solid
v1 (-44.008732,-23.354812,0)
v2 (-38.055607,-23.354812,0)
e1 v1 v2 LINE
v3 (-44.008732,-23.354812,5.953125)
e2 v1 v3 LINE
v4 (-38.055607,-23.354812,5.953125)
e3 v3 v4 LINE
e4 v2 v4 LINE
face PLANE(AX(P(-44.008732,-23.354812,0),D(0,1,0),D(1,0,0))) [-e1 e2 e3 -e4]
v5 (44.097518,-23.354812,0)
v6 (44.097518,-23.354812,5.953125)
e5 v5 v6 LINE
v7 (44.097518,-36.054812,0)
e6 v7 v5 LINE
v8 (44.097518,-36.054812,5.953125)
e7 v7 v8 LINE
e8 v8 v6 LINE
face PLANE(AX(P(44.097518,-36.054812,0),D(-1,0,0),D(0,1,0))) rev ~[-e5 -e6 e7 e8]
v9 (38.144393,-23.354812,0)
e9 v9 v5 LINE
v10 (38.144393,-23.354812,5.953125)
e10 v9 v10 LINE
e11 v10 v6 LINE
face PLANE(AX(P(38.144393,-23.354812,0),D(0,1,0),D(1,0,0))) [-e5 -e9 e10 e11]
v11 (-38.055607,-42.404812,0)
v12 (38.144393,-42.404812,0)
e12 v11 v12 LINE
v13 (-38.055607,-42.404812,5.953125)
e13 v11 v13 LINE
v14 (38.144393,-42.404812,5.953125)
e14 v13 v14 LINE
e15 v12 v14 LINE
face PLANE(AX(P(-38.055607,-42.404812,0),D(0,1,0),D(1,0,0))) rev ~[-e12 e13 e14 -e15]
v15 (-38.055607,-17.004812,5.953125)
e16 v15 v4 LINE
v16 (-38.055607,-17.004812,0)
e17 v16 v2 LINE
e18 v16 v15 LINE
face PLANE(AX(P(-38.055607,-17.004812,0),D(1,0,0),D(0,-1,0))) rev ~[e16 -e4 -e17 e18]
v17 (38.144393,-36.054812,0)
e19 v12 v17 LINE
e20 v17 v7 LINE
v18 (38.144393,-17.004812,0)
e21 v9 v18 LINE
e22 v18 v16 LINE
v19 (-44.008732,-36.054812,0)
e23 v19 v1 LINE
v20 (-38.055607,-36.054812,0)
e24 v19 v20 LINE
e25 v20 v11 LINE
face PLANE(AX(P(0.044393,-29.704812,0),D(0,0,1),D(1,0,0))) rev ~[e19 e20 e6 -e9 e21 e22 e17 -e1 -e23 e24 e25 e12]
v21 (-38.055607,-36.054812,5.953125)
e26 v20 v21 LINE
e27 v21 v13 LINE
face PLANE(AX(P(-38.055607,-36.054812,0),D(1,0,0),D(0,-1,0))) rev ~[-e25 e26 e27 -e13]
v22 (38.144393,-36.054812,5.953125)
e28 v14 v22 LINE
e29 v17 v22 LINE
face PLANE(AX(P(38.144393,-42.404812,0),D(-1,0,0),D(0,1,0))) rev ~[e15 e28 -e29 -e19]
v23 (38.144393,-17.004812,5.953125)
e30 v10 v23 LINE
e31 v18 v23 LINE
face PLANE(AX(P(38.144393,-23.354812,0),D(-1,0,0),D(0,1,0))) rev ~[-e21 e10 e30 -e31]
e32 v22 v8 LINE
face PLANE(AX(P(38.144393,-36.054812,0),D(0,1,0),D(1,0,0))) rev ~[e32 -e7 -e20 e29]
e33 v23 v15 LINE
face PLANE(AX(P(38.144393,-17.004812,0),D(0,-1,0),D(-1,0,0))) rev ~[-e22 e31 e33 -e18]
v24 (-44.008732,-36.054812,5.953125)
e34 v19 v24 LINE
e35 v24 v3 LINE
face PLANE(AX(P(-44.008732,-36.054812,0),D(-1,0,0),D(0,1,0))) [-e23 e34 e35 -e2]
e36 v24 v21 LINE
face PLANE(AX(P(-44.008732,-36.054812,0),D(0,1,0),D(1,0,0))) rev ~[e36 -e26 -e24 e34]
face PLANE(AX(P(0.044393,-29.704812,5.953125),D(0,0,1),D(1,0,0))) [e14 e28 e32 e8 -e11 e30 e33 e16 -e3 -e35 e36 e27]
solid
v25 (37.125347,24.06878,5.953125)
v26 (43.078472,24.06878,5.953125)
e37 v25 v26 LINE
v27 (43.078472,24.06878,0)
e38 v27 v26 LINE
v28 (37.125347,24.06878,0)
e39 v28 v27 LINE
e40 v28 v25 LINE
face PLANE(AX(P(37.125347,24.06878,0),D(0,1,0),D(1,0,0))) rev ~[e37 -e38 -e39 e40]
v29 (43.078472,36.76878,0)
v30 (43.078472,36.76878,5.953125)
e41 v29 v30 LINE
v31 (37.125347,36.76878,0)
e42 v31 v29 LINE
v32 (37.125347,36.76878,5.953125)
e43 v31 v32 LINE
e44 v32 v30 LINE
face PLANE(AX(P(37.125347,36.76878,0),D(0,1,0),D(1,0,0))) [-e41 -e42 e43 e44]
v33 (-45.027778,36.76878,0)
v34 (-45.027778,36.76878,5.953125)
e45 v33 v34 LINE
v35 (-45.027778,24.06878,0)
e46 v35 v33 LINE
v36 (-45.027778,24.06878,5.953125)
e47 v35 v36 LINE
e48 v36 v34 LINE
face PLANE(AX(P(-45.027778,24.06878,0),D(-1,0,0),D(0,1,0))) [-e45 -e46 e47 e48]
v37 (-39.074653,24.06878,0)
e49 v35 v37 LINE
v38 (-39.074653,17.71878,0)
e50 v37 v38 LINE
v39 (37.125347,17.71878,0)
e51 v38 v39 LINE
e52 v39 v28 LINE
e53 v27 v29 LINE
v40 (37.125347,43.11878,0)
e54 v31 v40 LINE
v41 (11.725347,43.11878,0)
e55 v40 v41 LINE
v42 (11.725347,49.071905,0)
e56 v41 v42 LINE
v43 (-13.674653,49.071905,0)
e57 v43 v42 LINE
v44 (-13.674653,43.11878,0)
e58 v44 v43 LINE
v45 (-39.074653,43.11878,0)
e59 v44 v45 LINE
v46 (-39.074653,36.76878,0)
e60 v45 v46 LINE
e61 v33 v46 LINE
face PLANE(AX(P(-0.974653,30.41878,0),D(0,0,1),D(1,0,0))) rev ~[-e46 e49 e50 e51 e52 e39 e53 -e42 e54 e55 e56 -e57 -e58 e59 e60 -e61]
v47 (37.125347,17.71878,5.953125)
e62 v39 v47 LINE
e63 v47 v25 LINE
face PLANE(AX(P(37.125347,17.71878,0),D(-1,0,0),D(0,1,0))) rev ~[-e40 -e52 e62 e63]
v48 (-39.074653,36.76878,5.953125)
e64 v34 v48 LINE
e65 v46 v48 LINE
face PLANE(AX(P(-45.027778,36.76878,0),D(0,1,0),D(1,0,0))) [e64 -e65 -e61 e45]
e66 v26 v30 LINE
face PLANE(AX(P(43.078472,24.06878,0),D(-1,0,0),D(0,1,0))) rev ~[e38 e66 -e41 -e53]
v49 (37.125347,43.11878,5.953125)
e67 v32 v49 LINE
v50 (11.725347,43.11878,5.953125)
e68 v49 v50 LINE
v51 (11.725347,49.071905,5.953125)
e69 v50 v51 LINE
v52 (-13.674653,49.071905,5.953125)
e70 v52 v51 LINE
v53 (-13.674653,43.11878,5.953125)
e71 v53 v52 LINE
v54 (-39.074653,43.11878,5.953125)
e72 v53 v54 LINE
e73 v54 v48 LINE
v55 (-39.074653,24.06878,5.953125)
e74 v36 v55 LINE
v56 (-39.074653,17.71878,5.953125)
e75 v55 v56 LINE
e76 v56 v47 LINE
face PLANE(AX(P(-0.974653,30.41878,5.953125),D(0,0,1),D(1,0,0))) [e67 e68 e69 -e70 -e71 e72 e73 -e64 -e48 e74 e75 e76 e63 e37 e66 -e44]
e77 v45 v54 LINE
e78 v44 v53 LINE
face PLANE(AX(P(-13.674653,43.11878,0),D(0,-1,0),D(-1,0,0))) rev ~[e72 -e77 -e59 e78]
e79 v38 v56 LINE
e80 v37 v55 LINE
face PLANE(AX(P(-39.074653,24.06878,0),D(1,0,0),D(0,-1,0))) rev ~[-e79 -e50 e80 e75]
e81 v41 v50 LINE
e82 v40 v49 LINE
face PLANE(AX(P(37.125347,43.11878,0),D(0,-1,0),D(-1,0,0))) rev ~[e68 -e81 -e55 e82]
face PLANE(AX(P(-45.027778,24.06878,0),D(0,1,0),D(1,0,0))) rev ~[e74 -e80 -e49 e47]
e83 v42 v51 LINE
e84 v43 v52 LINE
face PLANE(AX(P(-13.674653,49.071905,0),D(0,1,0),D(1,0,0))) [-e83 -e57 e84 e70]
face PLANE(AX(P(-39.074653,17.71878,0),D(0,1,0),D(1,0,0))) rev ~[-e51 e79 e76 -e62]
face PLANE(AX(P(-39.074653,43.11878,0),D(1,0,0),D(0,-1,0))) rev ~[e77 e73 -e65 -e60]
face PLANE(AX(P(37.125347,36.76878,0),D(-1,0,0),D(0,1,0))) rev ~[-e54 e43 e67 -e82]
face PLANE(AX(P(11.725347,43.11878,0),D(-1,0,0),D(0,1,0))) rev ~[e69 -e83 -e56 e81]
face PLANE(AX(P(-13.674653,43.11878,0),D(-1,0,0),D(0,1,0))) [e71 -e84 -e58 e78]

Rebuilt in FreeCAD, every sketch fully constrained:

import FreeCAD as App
import Part
import Sketcher

V = App.Vector
Q = App.Units.Quantity


def add_polygon(sketch, points):
    """Adds a closed chain of lines whose ends are joined by coincident constraints."""
    first, n = sketch.GeometryCount, len(points)
    for a, b in zip(points, points[1:] + points[:1]):
        sketch.addGeometry(Part.LineSegment(App.Vector(*a, 0), App.Vector(*b, 0)), False)
    for i in range(n):
        sketch.addConstraint(Sketcher.Constraint("Coincident", first + i, 2, first + (i + 1) % n, 1))

doc = App.newDocument("Part")
body = doc.addObject("PartDesign::Body", "Body")

# Sketch on XY plane
sketch1 = body.newObject("Sketcher::SketchObject", "Sketch")
sketch1.AttachmentSupport = (doc.getObject("XY_Plane"), [""])
sketch1.MapMode = "FlatFace"
add_polygon(sketch1, [(-39, 43), (-39, 37), (-45, 37), (-45, 24), (-39, 24), (-39, 18), (37, 18), (37, 24), (43, 24), (43, 37), (37, 37), (37, 43), (12, 43), (12, 49), (-14, 49), (-14, 43)])  # lines 0-15
sketch1.addConstraint(Sketcher.Constraint("Vertical", 0))
sketch1.addConstraint(Sketcher.Constraint("Horizontal", 1))
sketch1.addConstraint(Sketcher.Constraint("Vertical", 2))
sketch1.addConstraint(Sketcher.Constraint("Horizontal", 3))
sketch1.addConstraint(Sketcher.Constraint("Vertical", 4))
sketch1.addConstraint(Sketcher.Constraint("Horizontal", 5))
sketch1.addConstraint(Sketcher.Constraint("Vertical", 6))
sketch1.addConstraint(Sketcher.Constraint("Horizontal", 7))
sketch1.addConstraint(Sketcher.Constraint("Vertical", 8))
sketch1.addConstraint(Sketcher.Constraint("Horizontal", 9))
sketch1.addConstraint(Sketcher.Constraint("Vertical", 10))
sketch1.addConstraint(Sketcher.Constraint("Horizontal", 11))
sketch1.addConstraint(Sketcher.Constraint("Vertical", 12))
sketch1.addConstraint(Sketcher.Constraint("Horizontal", 13))
sketch1.addConstraint(Sketcher.Constraint("Vertical", 14))
sketch1.addConstraint(Sketcher.Constraint("Horizontal", 15))
sketch1.addConstraint(Sketcher.Constraint("Horizontal", 3, 2, 6, 2))
sketch1.addConstraint(Sketcher.Constraint("Horizontal", 1, 2, 8, 2))
sketch1.addConstraint(Sketcher.Constraint("Horizontal", 11, 2, 14, 2))
sketch1.addConstraint(Sketcher.Constraint("Vertical", 0, 2, 3, 2))
sketch1.addConstraint(Sketcher.Constraint("Vertical", 6, 2, 9, 2))
sketch1.addConstraint(Sketcher.Constraint("Equal", 3, 7))
sketch1.addConstraint(Sketcher.Constraint("Equal", 11, 13))
sketch1.addConstraint(Sketcher.Constraint("Equal", 13, 15))
sketch1.addConstraint(Sketcher.Constraint("Equal", 0, 4))
sketch1.addConstraint(Sketcher.Constraint("Equal", 9, 12))
sketch1.addConstraint(Sketcher.Constraint("DistanceX", 5, 1, 5, 2, Q("3 in")))
sketch1.addConstraint(Sketcher.Constraint("DistanceY", 2, 2, 2, 1, Q("0.5 in")))
sketch1.addConstraint(Sketcher.Constraint("DistanceY", 5, 2, 10, 2, Q("1 in")))
sketch1.addConstraint(Sketcher.Constraint("DistanceX", 1, 2, 1, 1, Q("0.234375 in")))
sketch1.addConstraint(Sketcher.Constraint("DistanceY", -1, 1, 0, 2, Q("36.76878 mm")))
sketch1.addConstraint(Sketcher.Constraint("DistanceX", 0, 2, -1, 1, Q("39.074653 mm")))
pad1 = body.newObject("PartDesign::Pad", "Pad")
pad1.Profile = sketch1
pad1.Length = Q("0.234375 in")
body2 = doc.addObject("PartDesign::Body", "Body001")

# Sketch on XY plane
sketch2 = body2.newObject("Sketcher::SketchObject", "Sketch001")
sketch2.AttachmentSupport = (doc.getObject("XY_Plane001"), [""])
sketch2.MapMode = "FlatFace"
add_polygon(sketch2, [(38, -17), (-38, -17), (-38, -23), (-44, -23), (-44, -36), (-38, -36), (-38, -42), (38, -42), (38, -36), (44, -36), (44, -23), (38, -23)])  # lines 0-11
sketch2.addConstraint(Sketcher.Constraint("Horizontal", 0))
sketch2.addConstraint(Sketcher.Constraint("Vertical", 1))
sketch2.addConstraint(Sketcher.Constraint("Horizontal", 2))
sketch2.addConstraint(Sketcher.Constraint("Vertical", 3))
sketch2.addConstraint(Sketcher.Constraint("Horizontal", 4))
sketch2.addConstraint(Sketcher.Constraint("Vertical", 5))
sketch2.addConstraint(Sketcher.Constraint("Horizontal", 6))
sketch2.addConstraint(Sketcher.Constraint("Vertical", 7))
sketch2.addConstraint(Sketcher.Constraint("Horizontal", 8))
sketch2.addConstraint(Sketcher.Constraint("Vertical", 9))
sketch2.addConstraint(Sketcher.Constraint("Horizontal", 10))
sketch2.addConstraint(Sketcher.Constraint("Vertical", 11))
sketch2.addConstraint(Sketcher.Constraint("Horizontal", 4, 2, 7, 2))
sketch2.addConstraint(Sketcher.Constraint("Horizontal", 2, 2, 9, 2))
sketch2.addConstraint(Sketcher.Constraint("Vertical", 1, 2, 4, 2))
sketch2.addConstraint(Sketcher.Constraint("Vertical", 7, 2, 10, 2))
sketch2.addConstraint(Sketcher.Constraint("Equal", 4, 8))
sketch2.addConstraint(Sketcher.Constraint("Equal", 1, 5))
sketch2.addConstraint(Sketcher.Constraint("DistanceX", 0, 2, 0, 1, Q("3 in")))
sketch2.addConstraint(Sketcher.Constraint("DistanceY", 3, 2, 3, 1, Q("0.5 in")))
sketch2.addConstraint(Sketcher.Constraint("DistanceY", 5, 2, 0, 2, Q("1 in")))
sketch2.addConstraint(Sketcher.Constraint("DistanceX", 2, 2, 2, 1, Q("0.234375 in")))
sketch2.addConstraint(Sketcher.Constraint("DistanceX", 2, 2, -1, 1, Q("44.008732 mm")))
sketch2.addConstraint(Sketcher.Constraint("DistanceY", 0, 2, -1, 1, Q("17.004812 mm")))
pad2 = body2.newObject("PartDesign::Pad", "Pad001")
pad2.Profile = sketch2
pad2.Length = Q("0.234375 in")

doc.recompute()
